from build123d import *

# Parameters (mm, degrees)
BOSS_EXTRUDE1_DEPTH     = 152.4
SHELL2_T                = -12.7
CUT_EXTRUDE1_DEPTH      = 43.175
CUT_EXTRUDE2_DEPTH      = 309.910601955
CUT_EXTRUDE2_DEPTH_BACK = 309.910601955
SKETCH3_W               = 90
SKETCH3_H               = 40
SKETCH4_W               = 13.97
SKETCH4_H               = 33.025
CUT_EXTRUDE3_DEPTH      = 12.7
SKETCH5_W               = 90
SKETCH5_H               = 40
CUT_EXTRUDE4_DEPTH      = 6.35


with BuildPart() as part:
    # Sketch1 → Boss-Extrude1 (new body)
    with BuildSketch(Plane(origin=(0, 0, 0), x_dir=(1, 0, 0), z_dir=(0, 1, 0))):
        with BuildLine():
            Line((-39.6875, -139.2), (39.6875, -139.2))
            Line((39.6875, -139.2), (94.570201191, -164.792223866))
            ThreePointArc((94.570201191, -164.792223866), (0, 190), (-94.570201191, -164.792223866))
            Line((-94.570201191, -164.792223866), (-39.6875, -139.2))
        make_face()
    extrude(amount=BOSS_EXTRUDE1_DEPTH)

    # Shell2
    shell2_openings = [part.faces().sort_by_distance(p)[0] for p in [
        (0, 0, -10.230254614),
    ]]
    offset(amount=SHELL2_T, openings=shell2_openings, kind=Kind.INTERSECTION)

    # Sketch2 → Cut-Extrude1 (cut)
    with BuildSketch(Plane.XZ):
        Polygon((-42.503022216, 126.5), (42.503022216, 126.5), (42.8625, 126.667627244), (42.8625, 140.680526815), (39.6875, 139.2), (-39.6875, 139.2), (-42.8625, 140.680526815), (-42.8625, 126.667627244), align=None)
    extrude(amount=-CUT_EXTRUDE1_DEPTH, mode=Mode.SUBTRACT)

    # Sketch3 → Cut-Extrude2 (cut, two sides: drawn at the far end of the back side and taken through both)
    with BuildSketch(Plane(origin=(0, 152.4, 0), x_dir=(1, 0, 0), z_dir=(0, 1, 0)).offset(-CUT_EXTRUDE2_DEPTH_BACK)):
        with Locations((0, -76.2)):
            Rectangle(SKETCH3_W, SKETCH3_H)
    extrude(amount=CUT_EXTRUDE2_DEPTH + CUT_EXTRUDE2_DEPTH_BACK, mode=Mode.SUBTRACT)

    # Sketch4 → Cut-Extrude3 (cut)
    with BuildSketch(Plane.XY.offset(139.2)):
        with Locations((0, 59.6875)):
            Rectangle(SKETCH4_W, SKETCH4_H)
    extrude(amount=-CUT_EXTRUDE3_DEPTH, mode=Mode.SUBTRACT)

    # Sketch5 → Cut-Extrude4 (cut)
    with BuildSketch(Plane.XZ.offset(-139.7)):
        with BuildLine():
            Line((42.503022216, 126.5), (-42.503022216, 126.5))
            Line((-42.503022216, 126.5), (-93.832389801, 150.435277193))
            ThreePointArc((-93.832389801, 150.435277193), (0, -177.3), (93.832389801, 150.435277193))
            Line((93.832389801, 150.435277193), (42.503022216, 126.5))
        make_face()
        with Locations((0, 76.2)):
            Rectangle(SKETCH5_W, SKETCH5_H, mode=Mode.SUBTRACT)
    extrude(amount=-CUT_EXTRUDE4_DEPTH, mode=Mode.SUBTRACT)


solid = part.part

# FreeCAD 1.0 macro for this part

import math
import FreeCAD as App
import Part
import Sketcher
from FreeCAD import Vector
Q = App.Units.Quantity


def faces_at(feature, points):
    """Names of the faces that lie closest to the given points."""
    faces = feature.Shape.Faces
    near = lambda p: min(range(len(faces)), key=lambda i: faces[i].distToShape(Part.Vertex(*p))[0])
    return sorted({f"Face{near(p) + 1}" for p in points})

doc = App.newDocument("Part")
body = doc.addObject("PartDesign::Body", "Body")

# Sketch on XZ plane
sketch1 = body.newObject("Sketcher::SketchObject", "Sketch")
sketch1.AttachmentSupport = (doc.getObject("XZ_Plane"), [""])
sketch1.MapMode = "FlatFace"
sketch1.addGeometry(Part.LineSegment(Vector(-40, 139, 0), Vector(40, 139, 0)), False)
sketch1.addGeometry(Part.LineSegment(Vector(40, 139, 0), Vector(95, 165, 0)), False)
sketch1.addGeometry(Part.ArcOfCircle(Part.Circle(Vector(0, 0, 0), Vector(0, 0, 1), 190), math.radians(120), math.radians(420)), False)
sketch1.addGeometry(Part.LineSegment(Vector(-95, 165, 0), Vector(-40, 139, 0)), False)
sketch1.addConstraint(Sketcher.Constraint("Coincident", 0, 2, 1, 1))
sketch1.addConstraint(Sketcher.Constraint("Coincident", 1, 2, 2, 2))
sketch1.addConstraint(Sketcher.Constraint("Coincident", 2, 1, 3, 1))
sketch1.addConstraint(Sketcher.Constraint("Coincident", 3, 2, 0, 1))
sketch1.addConstraint(Sketcher.Constraint("Horizontal", 0))
sketch1.addConstraint(Sketcher.Constraint("Coincident", 2, 3, -1, 1))
sketch1.addConstraint(Sketcher.Constraint("Horizontal", 1, 2, 2, 1))
sketch1.addConstraint(Sketcher.Constraint("Equal", 1, 3))
sketch1.addConstraint(Sketcher.Constraint("Angle", 1, Q("25 deg")))
sketch1.addConstraint(Sketcher.Constraint("DistanceX", 0, 1, 0, 2, Q("3.125 in")))
sketch1.addConstraint(Sketcher.Constraint("Radius", 2, 190.0))
sketch1.addConstraint(Sketcher.Constraint("DistanceY", -1, 1, 0, 2, 139.2))
pad1 = body.newObject("PartDesign::Pad", "Pad")
pad1.Profile = sketch1
pad1.Length = Q("6 in")
pad1.Reversed = True
doc.recompute()

thickness = body.newObject("PartDesign::Thickness", "Thickness")
thickness.Base = (pad1, faces_at(pad1, [(0, 0, -12.604)]))
thickness.Value = Q("0.5 in")
thickness.Reversed = True
thickness.Join = "Intersection"

# Sketch on XZ plane
sketch2 = body.newObject("Sketcher::SketchObject", "Sketch001")
sketch2.AttachmentSupport = (doc.getObject("XZ_Plane"), [""])
sketch2.MapMode = "FlatFace"
sketch2.addGeometry(Part.LineSegment(Vector(-42.5, 126.5, 0), Vector(42.5, 126.5, 0)), False)
sketch2.addGeometry(Part.LineSegment(Vector(42.5, 126.5, 0), Vector(42.86, 126.67, 0)), False)
sketch2.addGeometry(Part.LineSegment(Vector(42.86, 126.67, 0), Vector(42.86, 140.68, 0)), False)
sketch2.addGeometry(Part.LineSegment(Vector(42.86, 140.68, 0), Vector(39.69, 139.2, 0)), False)
sketch2.addGeometry(Part.LineSegment(Vector(39.69, 139.2, 0), Vector(-39.69, 139.2, 0)), False)
sketch2.addGeometry(Part.LineSegment(Vector(-39.69, 139.2, 0), Vector(-42.86, 140.68, 0)), False)
sketch2.addGeometry(Part.LineSegment(Vector(-42.86, 140.68, 0), Vector(-42.86, 126.67, 0)), False)
sketch2.addGeometry(Part.LineSegment(Vector(-42.86, 126.67, 0), Vector(-42.5, 126.5, 0)), False)
sketch2.addConstraint(Sketcher.Constraint("Coincident", 0, 2, 1, 1))
sketch2.addConstraint(Sketcher.Constraint("Coincident", 1, 2, 2, 1))
sketch2.addConstraint(Sketcher.Constraint("Coincident", 2, 2, 3, 1))
sketch2.addConstraint(Sketcher.Constraint("Coincident", 3, 2, 4, 1))
sketch2.addConstraint(Sketcher.Constraint("Coincident", 4, 2, 5, 1))
sketch2.addConstraint(Sketcher.Constraint("Coincident", 5, 2, 6, 1))
sketch2.addConstraint(Sketcher.Constraint("Coincident", 6, 2, 7, 1))
sketch2.addConstraint(Sketcher.Constraint("Coincident", 7, 2, 0, 1))
sketch2.addConstraint(Sketcher.Constraint("Horizontal", 0))
sketch2.addConstraint(Sketcher.Constraint("Vertical", 2))
sketch2.addConstraint(Sketcher.Constraint("Horizontal", 4))
sketch2.addConstraint(Sketcher.Constraint("Vertical", 6))
sketch2.addConstraint(Sketcher.Constraint("Symmetric", 2, 2, 5, 2, -2))
sketch2.addConstraint(Sketcher.Constraint("Parallel", 1, 3))
sketch2.addConstraint(Sketcher.Constraint("Parallel", 5, 7))
sketch2.addConstraint(Sketcher.Constraint("Horizontal", 1, 2, 6, 2))
sketch2.addConstraint(Sketcher.Constraint("Equal", 3, 5))
sketch2.addConstraint(Sketcher.Constraint("Angle", 1, Q("25 deg")))
sketch2.addConstraint(Sketcher.Constraint("DistanceY", 0, 2, 3, 2, Q("0.5 in")))
sketch2.addConstraint(Sketcher.Constraint("DistanceX", 4, 2, 4, 1, Q("3.125 in")))
sketch2.addConstraint(Sketcher.Constraint("DistanceX", 4, 2, 2, 2, Q("3.25 in")))
sketch2.addConstraint(Sketcher.Constraint("DistanceY", 2, 1, 2, 2, 14.0129))
sketch2.addConstraint(Sketcher.Constraint("DistanceY", -1, 1, 0, 2, 126.5))
pocket1 = body.newObject("PartDesign::Pocket", "Pocket")
pocket1.Profile = sketch2
pocket1.Length = 43.175

# Sketch on XZ plane
sketch3 = body.newObject("Sketcher::SketchObject", "Sketch002")
sketch3.AttachmentSupport = (doc.getObject("XZ_Plane"), [""])
sketch3.MapMode = "FlatFace"
sketch3.AttachmentOffset = App.Placement(Vector(0, 0, -6 * 25.4), App.Rotation())
sketch3.addGeometry(Part.LineSegment(Vector(-45, 56, 0), Vector(-45, 96, 0)), False)
sketch3.addGeometry(Part.LineSegment(Vector(-45, 96, 0), Vector(45, 96, 0)), False)
sketch3.addGeometry(Part.LineSegment(Vector(45, 96, 0), Vector(45, 56, 0)), False)
sketch3.addGeometry(Part.LineSegment(Vector(45, 56, 0), Vector(-45, 56, 0)), False)
sketch3.addConstraint(Sketcher.Constraint("Coincident", 0, 2, 1, 1))
sketch3.addConstraint(Sketcher.Constraint("Coincident", 1, 2, 2, 1))
sketch3.addConstraint(Sketcher.Constraint("Coincident", 2, 2, 3, 1))
sketch3.addConstraint(Sketcher.Constraint("Coincident", 3, 2, 0, 1))
sketch3.addConstraint(Sketcher.Constraint("Vertical", 0))
sketch3.addConstraint(Sketcher.Constraint("Horizontal", 1))
sketch3.addConstraint(Sketcher.Constraint("Vertical", 2))
sketch3.addConstraint(Sketcher.Constraint("Horizontal", 3))
sketch3.addConstraint(Sketcher.Constraint("DistanceX", 1, 1, 1, 2, 90.0))
sketch3.addConstraint(Sketcher.Constraint("DistanceY", 0, 1, 0, 2, 40.0))
sketch3.addConstraint(Sketcher.Constraint("DistanceX", 0, 2, -1, 1, 45.0))
sketch3.addConstraint(Sketcher.Constraint("DistanceY", -1, 1, 0, 2, 96.2))
pocket2 = body.newObject("PartDesign::Pocket", "Pocket001")
pocket2.Profile = sketch3
pocket2.Type = "ThroughAll"
pocket2.Midplane = True

# Sketch on XY plane
sketch4 = body.newObject("Sketcher::SketchObject", "Sketch003")
sketch4.AttachmentSupport = (doc.getObject("XY_Plane"), [""])
sketch4.MapMode = "FlatFace"
sketch4.AttachmentOffset = App.Placement(Vector(0, 0, 139.2), App.Rotation())
sketch4.addGeometry(Part.LineSegment(Vector(-7, 76, 0), Vector(-7, 43, 0)), False)
sketch4.addGeometry(Part.LineSegment(Vector(-7, 43, 0), Vector(7, 43, 0)), False)
sketch4.addGeometry(Part.LineSegment(Vector(7, 43, 0), Vector(7, 76, 0)), False)
sketch4.addGeometry(Part.LineSegment(Vector(7, 76, 0), Vector(-7, 76, 0)), False)
sketch4.addConstraint(Sketcher.Constraint("Coincident", 0, 2, 1, 1))
sketch4.addConstraint(Sketcher.Constraint("Coincident", 1, 2, 2, 1))
sketch4.addConstraint(Sketcher.Constraint("Coincident", 2, 2, 3, 1))
sketch4.addConstraint(Sketcher.Constraint("Coincident", 3, 2, 0, 1))
sketch4.addConstraint(Sketcher.Constraint("Vertical", 0))
sketch4.addConstraint(Sketcher.Constraint("Horizontal", 1))
sketch4.addConstraint(Sketcher.Constraint("Vertical", 2))
sketch4.addConstraint(Sketcher.Constraint("Horizontal", 3))
sketch4.addConstraint(Sketcher.Constraint("DistanceY", -1, 1, 2, 2, Q("3 in")))
sketch4.addConstraint(Sketcher.Constraint("DistanceX", 1, 1, 1, 2, Q("0.55 in")))
sketch4.addConstraint(Sketcher.Constraint("DistanceX", 0, 2, -1, 1, Q("0.275 in")))
sketch4.addConstraint(Sketcher.Constraint("DistanceY", 0, 2, 0, 1, 33.025))
pocket3 = body.newObject("PartDesign::Pocket", "Pocket002")
pocket3.Profile = sketch4
pocket3.Length = Q("0.5 in")

# Sketch on XZ plane
sketch5 = body.newObject("Sketcher::SketchObject", "Sketch004")
sketch5.AttachmentSupport = (doc.getObject("XZ_Plane"), [""])
sketch5.MapMode = "FlatFace"
sketch5.AttachmentOffset = App.Placement(Vector(0, 0, -5.5 * 25.4), App.Rotation())
sketch5.addGeometry(Part.LineSegment(Vector(43, 126, 0), Vector(-43, 126, 0)), False)
sketch5.addGeometry(Part.LineSegment(Vector(-43, 126, 0), Vector(-94, 150, 0)), False)
sketch5.addGeometry(Part.ArcOfCircle(Part.Circle(Vector(0, 0, 0), Vector(0, 0, 1), 177), math.radians(122), math.radians(418)), False)
sketch5.addGeometry(Part.LineSegment(Vector(94, 150, 0), Vector(43, 126, 0)), False)
sketch5.addGeometry(Part.LineSegment(Vector(45, 56, 0), Vector(-45, 56, 0)), False)
sketch5.addGeometry(Part.LineSegment(Vector(-45, 56, 0), Vector(-45, 96, 0)), False)
sketch5.addGeometry(Part.LineSegment(Vector(-45, 96, 0), Vector(45, 96, 0)), False)
sketch5.addGeometry(Part.LineSegment(Vector(45, 96, 0), Vector(45, 56, 0)), False)
sketch5.addConstraint(Sketcher.Constraint("Coincident", 0, 2, 1, 1))
sketch5.addConstraint(Sketcher.Constraint("Coincident", 1, 2, 2, 1))
sketch5.addConstraint(Sketcher.Constraint("Coincident", 2, 2, 3, 1))
sketch5.addConstraint(Sketcher.Constraint("Coincident", 3, 2, 0, 1))
sketch5.addConstraint(Sketcher.Constraint("Coincident", 4, 2, 5, 1))
sketch5.addConstraint(Sketcher.Constraint("Coincident", 5, 2, 6, 1))
sketch5.addConstraint(Sketcher.Constraint("Coincident", 6, 2, 7, 1))
sketch5.addConstraint(Sketcher.Constraint("Coincident", 7, 2, 4, 1))
sketch5.addConstraint(Sketcher.Constraint("Horizontal", 0))
sketch5.addConstraint(Sketcher.Constraint("Horizontal", 4))
sketch5.addConstraint(Sketcher.Constraint("Vertical", 5))
sketch5.addConstraint(Sketcher.Constraint("Horizontal", 6))
sketch5.addConstraint(Sketcher.Constraint("Vertical", 7))
sketch5.addConstraint(Sketcher.Constraint("Coincident", 2, 3, -1, 1))
sketch5.addConstraint(Sketcher.Constraint("Horizontal", 1, 2, 2, 2))
sketch5.addConstraint(Sketcher.Constraint("Equal", 1, 3))
sketch5.addConstraint(Sketcher.Constraint("Angle", 1, Q("155 deg")))
sketch5.addConstraint(Sketcher.Constraint("Radius", 2, 177.3))
sketch5.addConstraint(Sketcher.Constraint("DistanceX", 4, 2, 4, 1, 90.0))
sketch5.addConstraint(Sketcher.Constraint("DistanceY", 5, 1, 5, 2, 40.0))
sketch5.addConstraint(Sketcher.Constraint("DistanceY", -1, 1, 0, 2, 126.5))
sketch5.addConstraint(Sketcher.Constraint("DistanceX", 4, 2, -1, 1, 45.0))
sketch5.addConstraint(Sketcher.Constraint("DistanceY", -1, 1, 4, 2, 56.2))
sketch5.addConstraint(Sketcher.Constraint("Distance", 1, 56.635691))
pocket4 = body.newObject("PartDesign::Pocket", "Pocket003")
pocket4.Profile = sketch5
pocket4.Length = Q("0.25 in")

doc.recompute()
